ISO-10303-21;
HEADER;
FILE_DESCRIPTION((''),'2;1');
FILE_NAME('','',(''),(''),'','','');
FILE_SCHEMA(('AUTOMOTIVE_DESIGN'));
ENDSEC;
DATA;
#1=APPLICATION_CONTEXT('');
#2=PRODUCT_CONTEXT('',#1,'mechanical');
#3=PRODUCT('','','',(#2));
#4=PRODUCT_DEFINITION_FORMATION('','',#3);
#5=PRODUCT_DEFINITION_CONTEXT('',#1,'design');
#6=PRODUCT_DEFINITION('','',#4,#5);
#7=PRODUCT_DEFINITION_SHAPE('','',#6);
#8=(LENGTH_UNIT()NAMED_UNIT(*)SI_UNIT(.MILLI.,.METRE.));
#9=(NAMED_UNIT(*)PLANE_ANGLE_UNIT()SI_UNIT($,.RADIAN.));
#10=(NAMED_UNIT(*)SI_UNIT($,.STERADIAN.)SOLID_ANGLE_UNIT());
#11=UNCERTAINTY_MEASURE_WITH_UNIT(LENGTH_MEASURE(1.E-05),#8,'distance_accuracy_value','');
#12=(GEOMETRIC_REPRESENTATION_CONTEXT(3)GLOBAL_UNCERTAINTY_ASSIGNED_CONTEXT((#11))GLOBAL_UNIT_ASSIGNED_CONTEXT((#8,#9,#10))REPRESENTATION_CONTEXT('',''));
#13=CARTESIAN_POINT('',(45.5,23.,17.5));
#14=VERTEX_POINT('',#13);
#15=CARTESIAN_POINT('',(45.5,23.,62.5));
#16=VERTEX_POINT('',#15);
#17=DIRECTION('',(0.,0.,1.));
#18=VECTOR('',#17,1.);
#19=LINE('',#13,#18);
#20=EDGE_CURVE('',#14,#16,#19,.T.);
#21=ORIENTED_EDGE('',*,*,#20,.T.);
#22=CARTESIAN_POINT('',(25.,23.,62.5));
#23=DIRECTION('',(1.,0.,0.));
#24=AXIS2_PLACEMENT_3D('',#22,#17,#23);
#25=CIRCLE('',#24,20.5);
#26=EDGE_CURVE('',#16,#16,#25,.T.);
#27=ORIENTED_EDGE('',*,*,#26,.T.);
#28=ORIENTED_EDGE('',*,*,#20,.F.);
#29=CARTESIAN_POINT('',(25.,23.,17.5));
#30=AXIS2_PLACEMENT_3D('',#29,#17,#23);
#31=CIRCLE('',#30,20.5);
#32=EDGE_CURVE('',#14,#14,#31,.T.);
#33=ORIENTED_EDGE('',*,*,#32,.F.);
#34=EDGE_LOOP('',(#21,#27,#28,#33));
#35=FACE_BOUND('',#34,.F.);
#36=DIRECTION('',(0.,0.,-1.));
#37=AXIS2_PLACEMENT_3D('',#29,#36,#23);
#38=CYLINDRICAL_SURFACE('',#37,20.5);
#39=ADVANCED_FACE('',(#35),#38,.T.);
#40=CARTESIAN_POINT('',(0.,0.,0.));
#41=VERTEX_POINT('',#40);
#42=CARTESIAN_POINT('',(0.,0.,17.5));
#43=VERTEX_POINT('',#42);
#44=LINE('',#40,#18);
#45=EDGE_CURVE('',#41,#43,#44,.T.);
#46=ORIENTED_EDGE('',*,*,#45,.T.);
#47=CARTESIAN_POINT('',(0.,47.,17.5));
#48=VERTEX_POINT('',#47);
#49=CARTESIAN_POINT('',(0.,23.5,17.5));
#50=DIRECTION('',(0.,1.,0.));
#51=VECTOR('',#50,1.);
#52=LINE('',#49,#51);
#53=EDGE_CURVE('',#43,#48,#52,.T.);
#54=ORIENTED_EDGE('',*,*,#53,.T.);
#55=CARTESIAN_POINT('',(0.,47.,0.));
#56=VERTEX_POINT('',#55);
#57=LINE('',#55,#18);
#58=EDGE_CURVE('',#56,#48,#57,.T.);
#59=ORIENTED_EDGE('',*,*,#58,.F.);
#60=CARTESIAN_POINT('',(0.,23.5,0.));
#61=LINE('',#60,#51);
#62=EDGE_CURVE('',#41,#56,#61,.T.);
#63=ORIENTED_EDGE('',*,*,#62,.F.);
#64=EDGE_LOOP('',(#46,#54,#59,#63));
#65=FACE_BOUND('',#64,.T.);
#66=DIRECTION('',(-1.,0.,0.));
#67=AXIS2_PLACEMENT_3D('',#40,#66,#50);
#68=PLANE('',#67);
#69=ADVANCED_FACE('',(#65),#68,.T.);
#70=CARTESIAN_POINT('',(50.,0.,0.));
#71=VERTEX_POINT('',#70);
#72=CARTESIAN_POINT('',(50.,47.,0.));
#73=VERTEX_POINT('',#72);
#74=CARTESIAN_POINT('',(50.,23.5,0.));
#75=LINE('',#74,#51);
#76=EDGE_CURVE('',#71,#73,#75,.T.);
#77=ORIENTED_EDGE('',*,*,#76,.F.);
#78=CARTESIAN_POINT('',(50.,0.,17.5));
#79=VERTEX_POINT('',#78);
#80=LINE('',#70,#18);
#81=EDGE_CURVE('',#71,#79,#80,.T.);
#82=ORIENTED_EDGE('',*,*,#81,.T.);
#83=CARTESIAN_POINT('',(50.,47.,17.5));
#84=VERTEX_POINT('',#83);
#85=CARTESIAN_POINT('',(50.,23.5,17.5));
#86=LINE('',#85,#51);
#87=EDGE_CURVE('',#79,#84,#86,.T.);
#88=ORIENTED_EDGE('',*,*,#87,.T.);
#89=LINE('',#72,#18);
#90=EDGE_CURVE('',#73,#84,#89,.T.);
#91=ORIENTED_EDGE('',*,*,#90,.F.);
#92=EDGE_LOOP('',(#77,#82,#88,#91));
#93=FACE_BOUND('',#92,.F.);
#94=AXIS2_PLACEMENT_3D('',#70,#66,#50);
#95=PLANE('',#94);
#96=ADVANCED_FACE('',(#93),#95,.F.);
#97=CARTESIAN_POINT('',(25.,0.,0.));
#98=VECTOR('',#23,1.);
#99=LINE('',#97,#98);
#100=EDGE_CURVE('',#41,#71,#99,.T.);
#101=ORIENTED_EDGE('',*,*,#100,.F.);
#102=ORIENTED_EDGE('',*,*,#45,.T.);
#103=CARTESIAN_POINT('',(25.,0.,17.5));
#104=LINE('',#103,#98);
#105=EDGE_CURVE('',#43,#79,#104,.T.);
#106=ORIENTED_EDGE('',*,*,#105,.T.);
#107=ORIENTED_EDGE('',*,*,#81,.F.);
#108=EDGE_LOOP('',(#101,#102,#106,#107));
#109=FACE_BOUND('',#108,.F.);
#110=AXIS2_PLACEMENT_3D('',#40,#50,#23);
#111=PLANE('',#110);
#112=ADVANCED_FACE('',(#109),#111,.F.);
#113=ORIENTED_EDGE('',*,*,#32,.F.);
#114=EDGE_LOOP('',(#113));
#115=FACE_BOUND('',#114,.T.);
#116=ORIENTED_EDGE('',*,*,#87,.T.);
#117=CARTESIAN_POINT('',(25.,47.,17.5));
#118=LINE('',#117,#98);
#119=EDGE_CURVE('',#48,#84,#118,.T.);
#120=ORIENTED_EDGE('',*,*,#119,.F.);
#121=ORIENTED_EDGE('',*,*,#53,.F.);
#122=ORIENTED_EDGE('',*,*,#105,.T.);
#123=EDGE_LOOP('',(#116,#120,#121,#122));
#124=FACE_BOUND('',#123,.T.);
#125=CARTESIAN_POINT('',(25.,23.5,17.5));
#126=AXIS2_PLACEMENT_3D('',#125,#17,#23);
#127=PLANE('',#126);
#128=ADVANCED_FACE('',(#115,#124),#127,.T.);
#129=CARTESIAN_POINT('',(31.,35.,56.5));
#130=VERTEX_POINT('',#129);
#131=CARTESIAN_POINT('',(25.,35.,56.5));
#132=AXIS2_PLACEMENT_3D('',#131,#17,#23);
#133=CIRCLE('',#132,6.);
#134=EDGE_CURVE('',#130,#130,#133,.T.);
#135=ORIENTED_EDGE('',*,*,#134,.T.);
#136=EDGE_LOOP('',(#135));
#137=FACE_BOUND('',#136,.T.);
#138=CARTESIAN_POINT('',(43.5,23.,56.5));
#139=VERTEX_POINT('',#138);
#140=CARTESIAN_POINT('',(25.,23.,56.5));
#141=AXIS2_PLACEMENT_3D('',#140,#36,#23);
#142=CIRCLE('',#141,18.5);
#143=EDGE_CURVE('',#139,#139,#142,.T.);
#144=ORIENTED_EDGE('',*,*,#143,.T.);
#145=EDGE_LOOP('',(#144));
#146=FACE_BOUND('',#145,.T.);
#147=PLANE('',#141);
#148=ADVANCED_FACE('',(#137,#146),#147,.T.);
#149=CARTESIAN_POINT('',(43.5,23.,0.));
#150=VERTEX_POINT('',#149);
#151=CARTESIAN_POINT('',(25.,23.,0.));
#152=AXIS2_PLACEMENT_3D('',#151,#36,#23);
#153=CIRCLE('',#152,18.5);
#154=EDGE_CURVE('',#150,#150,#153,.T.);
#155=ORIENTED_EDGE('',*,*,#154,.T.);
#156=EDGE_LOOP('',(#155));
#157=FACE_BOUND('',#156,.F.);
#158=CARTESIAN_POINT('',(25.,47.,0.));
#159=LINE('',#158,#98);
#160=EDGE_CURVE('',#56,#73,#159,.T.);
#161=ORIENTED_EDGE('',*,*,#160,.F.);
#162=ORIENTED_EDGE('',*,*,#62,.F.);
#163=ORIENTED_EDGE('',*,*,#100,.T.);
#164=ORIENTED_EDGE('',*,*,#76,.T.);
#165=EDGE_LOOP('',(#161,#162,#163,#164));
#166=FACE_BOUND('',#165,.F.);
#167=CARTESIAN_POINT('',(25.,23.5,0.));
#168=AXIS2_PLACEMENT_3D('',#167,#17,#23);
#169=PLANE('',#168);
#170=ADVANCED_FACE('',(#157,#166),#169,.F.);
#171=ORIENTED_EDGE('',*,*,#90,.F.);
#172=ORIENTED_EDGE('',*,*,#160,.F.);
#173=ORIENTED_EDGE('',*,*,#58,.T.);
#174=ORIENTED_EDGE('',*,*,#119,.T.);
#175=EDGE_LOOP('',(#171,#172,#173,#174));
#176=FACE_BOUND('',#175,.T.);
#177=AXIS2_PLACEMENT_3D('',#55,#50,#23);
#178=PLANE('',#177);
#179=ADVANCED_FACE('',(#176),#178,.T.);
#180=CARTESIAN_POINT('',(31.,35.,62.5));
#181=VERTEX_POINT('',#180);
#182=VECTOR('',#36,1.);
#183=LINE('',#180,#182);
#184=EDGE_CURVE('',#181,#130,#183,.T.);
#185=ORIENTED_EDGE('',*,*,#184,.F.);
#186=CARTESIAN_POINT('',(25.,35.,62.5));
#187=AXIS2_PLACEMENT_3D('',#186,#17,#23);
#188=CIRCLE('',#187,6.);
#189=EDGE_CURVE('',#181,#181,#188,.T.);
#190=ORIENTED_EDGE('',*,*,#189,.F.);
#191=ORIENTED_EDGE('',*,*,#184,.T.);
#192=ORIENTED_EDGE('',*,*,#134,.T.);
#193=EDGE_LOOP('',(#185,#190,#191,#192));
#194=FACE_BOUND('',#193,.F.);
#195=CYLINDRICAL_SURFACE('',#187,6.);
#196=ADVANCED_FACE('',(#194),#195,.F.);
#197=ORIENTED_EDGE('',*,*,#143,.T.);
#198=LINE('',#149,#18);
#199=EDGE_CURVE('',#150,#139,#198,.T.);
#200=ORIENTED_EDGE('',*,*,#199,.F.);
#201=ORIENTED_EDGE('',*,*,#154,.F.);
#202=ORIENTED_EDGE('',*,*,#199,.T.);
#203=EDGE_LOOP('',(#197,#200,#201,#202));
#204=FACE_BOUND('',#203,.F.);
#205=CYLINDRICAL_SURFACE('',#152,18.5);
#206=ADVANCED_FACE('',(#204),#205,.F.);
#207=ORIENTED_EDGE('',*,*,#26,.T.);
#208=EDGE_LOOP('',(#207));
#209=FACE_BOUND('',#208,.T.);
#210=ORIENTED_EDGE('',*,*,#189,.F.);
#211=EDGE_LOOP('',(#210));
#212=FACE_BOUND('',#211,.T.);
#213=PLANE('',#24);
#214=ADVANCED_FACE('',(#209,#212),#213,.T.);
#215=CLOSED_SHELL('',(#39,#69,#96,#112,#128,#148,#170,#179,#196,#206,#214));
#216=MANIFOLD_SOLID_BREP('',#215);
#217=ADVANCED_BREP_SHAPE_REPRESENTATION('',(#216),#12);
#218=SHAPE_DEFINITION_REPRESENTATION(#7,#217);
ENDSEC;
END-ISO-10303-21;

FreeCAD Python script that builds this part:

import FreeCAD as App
import Part
import Sketcher

doc = App.newDocument("Part")
params = doc.addObject("Spreadsheet::Sheet", "Params")
for row, (alias, value) in enumerate([
    ("sketch1_width", "50 mm"),
    ("sketch1_height", "47 mm"),
    ("pad1_length", "17.5 mm"),
    ("sketch2_diameter", "41 mm"),
    ("pad2_length", "45 mm"),
    ("sketch3_diameter", "37 mm"),
    ("pocket1_length", "56.5 mm"),
    ("sketch4_diameter", "12 mm"),
    ("pocket2_length", "25 mm"),
], start=1):
    params.set(f"A{row}", alias)
    params.set(f"B{row}", "=" + value)
    params.setAlias(f"B{row}", alias)

body = doc.addObject("PartDesign::Body", "Body")

sketch1 = body.newObject("Sketcher::SketchObject", "Sketch")
sketch1.AttachmentSupport = (doc.getObject("XY_Plane"), [""])
sketch1.MapMode = "FlatFace"
sketch1.addGeometry([
    Part.LineSegment(App.Vector(0, 47, 0), App.Vector(0, 0, 0)),
    Part.LineSegment(App.Vector(0, 0, 0), App.Vector(50, 0, 0)),
    Part.LineSegment(App.Vector(50, 0, 0), App.Vector(50, 47, 0)),
    Part.LineSegment(App.Vector(50, 47, 0), App.Vector(0, 47, 0)),
], False)
sketch1.addConstraint([
    Sketcher.Constraint("Coincident", 0, 2, 1, 1),
    Sketcher.Constraint("Coincident", 1, 2, 2, 1),
    Sketcher.Constraint("Coincident", 2, 2, 3, 1),
    Sketcher.Constraint("Coincident", 3, 2, 0, 1),
    Sketcher.Constraint("Vertical", 0),
    Sketcher.Constraint("Horizontal", 1),
    Sketcher.Constraint("Vertical", 2),
    Sketcher.Constraint("Horizontal", 3),
    Sketcher.Constraint("Coincident", 0, 2, -1, 1),
    Sketcher.Constraint("DistanceX", 1, 1, 1, 2, 50.0),
    Sketcher.Constraint("DistanceY", 0, 2, 0, 1, 47.0),
])
sketch1.setExpression("Constraints[9]", "Params.sketch1_width")
sketch1.setExpression("Constraints[10]", "Params.sketch1_height")
pad1 = body.newObject("PartDesign::Pad", "Pad")
pad1.Profile = sketch1
pad1.setExpression("Length", "Params.pad1_length")

sketch2 = body.newObject("Sketcher::SketchObject", "Sketch001")
sketch2.AttachmentSupport = (doc.getObject("XY_Plane"), [""])
sketch2.MapMode = "FlatFace"
sketch2.AttachmentOffset = App.Placement(App.Vector(0, 0, 17.5), App.Rotation())
sketch2.addGeometry(Part.Circle(App.Vector(25, 23, 0), App.Vector(0, 0, 1), 20), False)
sketch2.addConstraint([
    Sketcher.Constraint("Diameter", 0, 41.0),
    Sketcher.Constraint("DistanceX", -1, 1, 0, 3, 25.0),
    Sketcher.Constraint("DistanceY", -1, 1, 0, 3, 23.0),
])
sketch2.setExpression("Constraints[0]", "Params.sketch2_diameter")
pad2 = body.newObject("PartDesign::Pad", "Pad001")
pad2.Profile = sketch2
pad2.setExpression("Length", "Params.pad2_length")

sketch3 = body.newObject("Sketcher::SketchObject", "Sketch002")
sketch3.AttachmentSupport = (doc.getObject("XY_Plane"), [""])
sketch3.MapMode = "FlatFace"
sketch3.addGeometry(Part.Circle(App.Vector(25, 23, 0), App.Vector(0, 0, 1), 18), False)
sketch3.addConstraint([
    Sketcher.Constraint("Diameter", 0, 37.0),
    Sketcher.Constraint("DistanceX", -1, 1, 0, 3, 25.0),
    Sketcher.Constraint("DistanceY", -1, 1, 0, 3, 23.0),
])
sketch3.setExpression("Constraints[0]", "Params.sketch3_diameter")
pocket1 = body.newObject("PartDesign::Pocket", "Pocket")
pocket1.Profile = sketch3
pocket1.setExpression("Length", "Params.pocket1_length")
pocket1.Reversed = True

sketch4 = body.newObject("Sketcher::SketchObject", "Sketch003")
sketch4.AttachmentSupport = (doc.getObject("XY_Plane"), [""])
sketch4.MapMode = "FlatFace"
sketch4.AttachmentOffset = App.Placement(App.Vector(0, 0, 62.5), App.Rotation())
sketch4.addGeometry(Part.Circle(App.Vector(25, 35, 0), App.Vector(0, 0, 1), 6), False)
sketch4.addConstraint([
    Sketcher.Constraint("Diameter", 0, 12.0),
    Sketcher.Constraint("DistanceX", -1, 1, 0, 3, 25.0),
    Sketcher.Constraint("DistanceY", -1, 1, 0, 3, 35.0),
])
sketch4.setExpression("Constraints[0]", "Params.sketch4_diameter")
pocket2 = body.newObject("PartDesign::Pocket", "Pocket001")
pocket2.Profile = sketch4
pocket2.setExpression("Length", "Params.pocket2_length")

doc.recompute()
